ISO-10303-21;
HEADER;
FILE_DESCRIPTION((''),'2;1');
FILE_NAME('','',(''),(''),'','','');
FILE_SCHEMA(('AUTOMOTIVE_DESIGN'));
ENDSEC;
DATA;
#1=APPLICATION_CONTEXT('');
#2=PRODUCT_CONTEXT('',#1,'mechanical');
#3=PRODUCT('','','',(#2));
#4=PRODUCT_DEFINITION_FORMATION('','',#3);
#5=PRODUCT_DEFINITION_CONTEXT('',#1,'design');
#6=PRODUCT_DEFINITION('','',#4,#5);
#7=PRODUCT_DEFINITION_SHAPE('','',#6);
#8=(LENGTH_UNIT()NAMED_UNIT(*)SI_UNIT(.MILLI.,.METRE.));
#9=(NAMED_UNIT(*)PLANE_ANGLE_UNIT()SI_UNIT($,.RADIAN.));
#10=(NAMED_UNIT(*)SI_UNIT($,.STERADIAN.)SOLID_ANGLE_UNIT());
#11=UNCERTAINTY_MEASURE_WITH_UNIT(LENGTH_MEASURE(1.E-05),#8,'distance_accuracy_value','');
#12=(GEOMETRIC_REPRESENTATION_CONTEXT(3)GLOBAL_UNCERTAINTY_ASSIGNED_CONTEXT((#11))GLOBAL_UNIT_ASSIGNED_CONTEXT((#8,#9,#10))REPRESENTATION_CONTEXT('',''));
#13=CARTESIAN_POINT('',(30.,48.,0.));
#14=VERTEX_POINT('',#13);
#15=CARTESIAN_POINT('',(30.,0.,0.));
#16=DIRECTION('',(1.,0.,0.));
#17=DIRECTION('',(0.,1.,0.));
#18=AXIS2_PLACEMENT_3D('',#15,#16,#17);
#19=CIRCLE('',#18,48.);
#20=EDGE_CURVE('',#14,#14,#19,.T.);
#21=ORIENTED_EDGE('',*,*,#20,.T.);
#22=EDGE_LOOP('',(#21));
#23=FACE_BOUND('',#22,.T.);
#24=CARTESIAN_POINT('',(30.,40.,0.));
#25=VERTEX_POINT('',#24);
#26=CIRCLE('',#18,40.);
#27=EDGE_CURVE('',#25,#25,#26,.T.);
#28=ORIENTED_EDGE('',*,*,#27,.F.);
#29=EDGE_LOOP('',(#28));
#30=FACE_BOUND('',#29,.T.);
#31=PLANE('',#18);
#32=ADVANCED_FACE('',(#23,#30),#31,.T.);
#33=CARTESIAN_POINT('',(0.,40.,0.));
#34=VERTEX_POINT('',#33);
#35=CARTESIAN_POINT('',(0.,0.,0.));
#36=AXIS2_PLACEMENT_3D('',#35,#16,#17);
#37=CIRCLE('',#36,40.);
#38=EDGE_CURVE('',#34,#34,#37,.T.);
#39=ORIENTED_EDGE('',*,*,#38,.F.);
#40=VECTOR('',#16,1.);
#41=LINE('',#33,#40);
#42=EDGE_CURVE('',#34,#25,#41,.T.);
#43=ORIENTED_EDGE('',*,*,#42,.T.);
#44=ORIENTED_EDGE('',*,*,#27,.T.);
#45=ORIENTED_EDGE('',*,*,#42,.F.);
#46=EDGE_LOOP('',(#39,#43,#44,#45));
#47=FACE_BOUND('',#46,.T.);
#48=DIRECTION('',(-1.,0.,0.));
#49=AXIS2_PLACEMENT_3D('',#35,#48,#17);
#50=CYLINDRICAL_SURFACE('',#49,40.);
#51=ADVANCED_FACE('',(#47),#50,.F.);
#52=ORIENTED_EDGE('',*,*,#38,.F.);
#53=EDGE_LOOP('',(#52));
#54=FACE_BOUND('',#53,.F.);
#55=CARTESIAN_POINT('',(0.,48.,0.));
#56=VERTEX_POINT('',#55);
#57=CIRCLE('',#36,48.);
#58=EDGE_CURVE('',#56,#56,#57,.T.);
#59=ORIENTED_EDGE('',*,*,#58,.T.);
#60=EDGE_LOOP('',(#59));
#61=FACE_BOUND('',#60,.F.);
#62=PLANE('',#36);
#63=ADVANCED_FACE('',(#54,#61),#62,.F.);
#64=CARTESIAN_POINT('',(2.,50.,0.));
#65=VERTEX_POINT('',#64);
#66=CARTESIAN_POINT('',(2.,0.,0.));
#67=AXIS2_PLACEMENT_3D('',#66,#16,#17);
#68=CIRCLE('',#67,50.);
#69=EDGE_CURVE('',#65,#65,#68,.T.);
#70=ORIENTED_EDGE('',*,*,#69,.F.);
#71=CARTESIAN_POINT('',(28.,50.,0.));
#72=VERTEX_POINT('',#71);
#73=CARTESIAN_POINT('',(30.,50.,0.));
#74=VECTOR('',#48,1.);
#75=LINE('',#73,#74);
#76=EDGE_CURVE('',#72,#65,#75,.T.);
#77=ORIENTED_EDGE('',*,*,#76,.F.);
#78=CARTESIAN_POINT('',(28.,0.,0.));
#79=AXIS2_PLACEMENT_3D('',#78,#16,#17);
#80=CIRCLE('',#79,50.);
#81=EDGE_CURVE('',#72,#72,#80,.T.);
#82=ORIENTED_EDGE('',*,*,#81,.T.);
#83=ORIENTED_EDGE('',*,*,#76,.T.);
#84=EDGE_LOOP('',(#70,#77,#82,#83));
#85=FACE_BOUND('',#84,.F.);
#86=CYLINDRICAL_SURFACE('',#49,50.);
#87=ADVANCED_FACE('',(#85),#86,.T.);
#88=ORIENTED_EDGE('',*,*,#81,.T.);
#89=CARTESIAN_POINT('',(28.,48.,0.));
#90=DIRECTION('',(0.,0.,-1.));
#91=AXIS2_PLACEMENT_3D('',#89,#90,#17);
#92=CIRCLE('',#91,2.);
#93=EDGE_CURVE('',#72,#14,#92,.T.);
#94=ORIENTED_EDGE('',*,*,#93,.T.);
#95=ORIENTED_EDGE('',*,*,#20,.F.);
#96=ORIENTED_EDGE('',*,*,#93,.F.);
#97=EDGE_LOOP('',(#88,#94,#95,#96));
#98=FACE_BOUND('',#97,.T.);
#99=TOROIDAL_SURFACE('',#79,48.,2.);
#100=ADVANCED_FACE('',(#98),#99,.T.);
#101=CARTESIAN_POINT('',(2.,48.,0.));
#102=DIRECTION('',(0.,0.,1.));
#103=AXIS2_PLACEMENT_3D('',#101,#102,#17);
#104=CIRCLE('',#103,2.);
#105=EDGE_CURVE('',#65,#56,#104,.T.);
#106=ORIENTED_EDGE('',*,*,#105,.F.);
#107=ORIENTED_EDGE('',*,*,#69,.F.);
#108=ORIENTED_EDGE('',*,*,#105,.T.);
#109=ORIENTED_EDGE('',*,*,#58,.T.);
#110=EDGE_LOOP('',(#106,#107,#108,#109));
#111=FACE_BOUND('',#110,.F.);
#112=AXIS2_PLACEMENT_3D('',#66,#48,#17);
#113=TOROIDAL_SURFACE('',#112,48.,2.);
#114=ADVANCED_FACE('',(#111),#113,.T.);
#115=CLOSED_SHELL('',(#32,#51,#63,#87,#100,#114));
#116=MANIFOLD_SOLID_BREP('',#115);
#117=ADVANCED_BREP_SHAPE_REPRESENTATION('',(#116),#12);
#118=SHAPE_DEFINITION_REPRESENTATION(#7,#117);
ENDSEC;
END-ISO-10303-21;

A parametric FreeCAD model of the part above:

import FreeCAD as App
import Part
import Sketcher
from FreeCAD import Vector


def edges_at(feature, points):
    """Names of the edges that pass closest to the given points."""
    edges = feature.Shape.Edges
    near = lambda p: min(range(len(edges)), key=lambda i: edges[i].distToShape(Part.Vertex(*p))[0])
    return sorted({f"Edge{near(p) + 1}" for p in points})

doc = App.newDocument("Part")
body = doc.addObject("PartDesign::Body", "Body")

# Sketch on YZ plane
sketch1 = body.newObject("Sketcher::SketchObject", "Sketch")
sketch1.AttachmentSupport = (doc.getObject("YZ_Plane"), [""])
sketch1.MapMode = "FlatFace"
sketch1.addGeometry(Part.Circle(Vector(0, 0, 0), Vector(0, 0, 1), 50), False)
sketch1.addGeometry(Part.Circle(Vector(0, 0, 0), Vector(0, 0, 1), 40), False)
sketch1.addConstraint(Sketcher.Constraint("Coincident", 0, 3, -1, 1))
sketch1.addConstraint(Sketcher.Constraint("Coincident", 1, 3, -1, 1))
sketch1.addConstraint(Sketcher.Constraint("Diameter", 0, 100.0))
sketch1.addConstraint(Sketcher.Constraint("Diameter", 1, 80.0))
pad1 = body.newObject("PartDesign::Pad", "Pad")
pad1.Profile = sketch1
pad1.Length = 28

# Sketch on YZ plane
sketch2 = body.newObject("Sketcher::SketchObject", "Sketch001")
sketch2.AttachmentSupport = (doc.getObject("YZ_Plane"), [""])
sketch2.MapMode = "FlatFace"
sketch2.addGeometry(Part.Circle(Vector(0, 0, 0), Vector(0, 0, 1), 50), False)
sketch2.addGeometry(Part.Circle(Vector(0, 0, 0), Vector(0, 0, 1), 40), False)
sketch2.addConstraint(Sketcher.Constraint("Coincident", 0, 3, -1, 1))
sketch2.addConstraint(Sketcher.Constraint("Coincident", 1, 3, -1, 1))
sketch2.addConstraint(Sketcher.Constraint("Diameter", 0, 100.0))
sketch2.addConstraint(Sketcher.Constraint("Diameter", 1, 80.0))
pad2 = body.newObject("PartDesign::Pad", "Pad001")
pad2.Profile = sketch2
pad2.Length = 30
doc.recompute()

fillet = body.newObject("PartDesign::Fillet", "Fillet")
fillet.Base = (pad2, edges_at(pad2, [(30, -50, 0)]))
fillet.Radius = 2
doc.recompute()

fillet2 = body.newObject("PartDesign::Fillet", "Fillet001")
fillet2.Base = (fillet, edges_at(fillet, [(0, -50, 0)]))
fillet2.Radius = 2

doc.recompute()
